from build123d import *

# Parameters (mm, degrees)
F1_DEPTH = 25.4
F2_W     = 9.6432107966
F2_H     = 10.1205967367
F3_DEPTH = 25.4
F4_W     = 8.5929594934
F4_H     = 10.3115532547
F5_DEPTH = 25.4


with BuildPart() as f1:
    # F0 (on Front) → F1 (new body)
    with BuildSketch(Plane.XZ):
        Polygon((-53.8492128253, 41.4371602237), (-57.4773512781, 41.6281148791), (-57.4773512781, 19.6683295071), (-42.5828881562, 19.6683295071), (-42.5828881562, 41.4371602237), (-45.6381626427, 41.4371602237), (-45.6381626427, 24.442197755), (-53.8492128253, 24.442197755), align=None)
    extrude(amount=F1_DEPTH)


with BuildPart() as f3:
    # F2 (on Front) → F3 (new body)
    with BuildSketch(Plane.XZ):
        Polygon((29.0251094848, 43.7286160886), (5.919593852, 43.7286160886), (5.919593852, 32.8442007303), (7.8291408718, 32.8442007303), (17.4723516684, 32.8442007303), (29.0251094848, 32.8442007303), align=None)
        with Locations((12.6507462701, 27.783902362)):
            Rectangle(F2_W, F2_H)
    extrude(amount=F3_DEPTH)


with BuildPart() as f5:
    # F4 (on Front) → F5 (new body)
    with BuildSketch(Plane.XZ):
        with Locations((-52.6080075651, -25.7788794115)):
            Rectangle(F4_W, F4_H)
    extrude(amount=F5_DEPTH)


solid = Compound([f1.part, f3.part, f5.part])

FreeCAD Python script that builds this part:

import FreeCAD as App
import Part
import Sketcher

V = App.Vector
Q = App.Units.Quantity

doc = App.newDocument("Part")
body = doc.addObject("PartDesign::Body", "Body")

sketch1 = doc.addObject("Sketcher::SketchObject", "Sketch")
body.addObject(sketch1)
sketch1.AttachmentSupport = (doc.XZ_Plane, [""])
sketch1.MapMode = "FlatFace"
sketch1.addGeometry(Part.LineSegment(V(-53.8, 41.4, 0), V(-57.5, 41.6, 0)), False)
sketch1.addGeometry(Part.LineSegment(V(-57.5, 41.6, 0), V(-57.5, 19.7, 0)), False)
sketch1.addGeometry(Part.LineSegment(V(-57.5, 19.7, 0), V(-42.6, 19.7, 0)), False)
sketch1.addGeometry(Part.LineSegment(V(-42.6, 19.7, 0), V(-42.6, 41.4, 0)), False)
sketch1.addGeometry(Part.LineSegment(V(-42.6, 41.4, 0), V(-45.6, 41.4, 0)), False)
sketch1.addGeometry(Part.LineSegment(V(-45.6, 41.4, 0), V(-45.6, 24.4, 0)), False)
sketch1.addGeometry(Part.LineSegment(V(-45.6, 24.4, 0), V(-53.8, 24.4, 0)), False)
sketch1.addGeometry(Part.LineSegment(V(-53.8, 24.4, 0), V(-53.8, 41.4, 0)), False)
sketch1.addConstraint(Sketcher.Constraint("Coincident", 0, 2, 1, 1))
sketch1.addConstraint(Sketcher.Constraint("Coincident", 1, 2, 2, 1))
sketch1.addConstraint(Sketcher.Constraint("Coincident", 2, 2, 3, 1))
sketch1.addConstraint(Sketcher.Constraint("Coincident", 3, 2, 4, 1))
sketch1.addConstraint(Sketcher.Constraint("Coincident", 4, 2, 5, 1))
sketch1.addConstraint(Sketcher.Constraint("Coincident", 5, 2, 6, 1))
sketch1.addConstraint(Sketcher.Constraint("Coincident", 6, 2, 7, 1))
sketch1.addConstraint(Sketcher.Constraint("Coincident", 7, 2, 0, 1))
sketch1.addConstraint(Sketcher.Constraint("Vertical", 1))
sketch1.addConstraint(Sketcher.Constraint("Horizontal", 2))
sketch1.addConstraint(Sketcher.Constraint("Vertical", 3))
sketch1.addConstraint(Sketcher.Constraint("Horizontal", 4))
sketch1.addConstraint(Sketcher.Constraint("Vertical", 5))
sketch1.addConstraint(Sketcher.Constraint("Horizontal", 6))
sketch1.addConstraint(Sketcher.Constraint("Vertical", 7))
sketch1.addConstraint(Sketcher.Constraint("Horizontal", 4, 2, 7, 2))
sketch1.addConstraint(Sketcher.Constraint("DistanceX", 6, 2, 6, 1, 8.21105))
sketch1.addConstraint(Sketcher.Constraint("DistanceY", 3, 1, 3, 2, 21.768831))
sketch1.addConstraint(Sketcher.Constraint("Distance", 0, 3.63316))
sketch1.addConstraint(Sketcher.Constraint("DistanceX", 2, 1, 2, 2, 14.894463))
sketch1.addConstraint(Sketcher.Constraint("DistanceX", 4, 2, 4, 1, 3.055274))
sketch1.addConstraint(Sketcher.Constraint("DistanceY", 5, 2, 5, 1, 16.994962))
sketch1.addConstraint(Sketcher.Constraint("DistanceX", 0, 2, -1, 1, 57.477351))
sketch1.addConstraint(Sketcher.Constraint("DistanceY", -1, 1, 1, 2, 19.66833))
pad1 = doc.addObject("PartDesign::Pad", "Pad")
body.addObject(pad1)
pad1.Profile = sketch1
pad1.Length = Q("1 in")
body2 = doc.addObject("PartDesign::Body", "Body001")

sketch2 = doc.addObject("Sketcher::SketchObject", "Sketch001")
body2.addObject(sketch2)
sketch2.AttachmentSupport = (doc.getObject("XZ_Plane001"), [""])
sketch2.MapMode = "FlatFace"
sketch2.addGeometry(Part.LineSegment(V(29, 43.7, 0), V(5.9, 43.7, 0)), False)
sketch2.addGeometry(Part.LineSegment(V(5.9, 43.7, 0), V(5.9, 32.8, 0)), False)
sketch2.addGeometry(Part.LineSegment(V(5.9, 32.8, 0), V(7.8, 32.8, 0)), False)
sketch2.addGeometry(Part.LineSegment(V(7.8, 32.8, 0), V(7.8, 22.7, 0)), False)
sketch2.addGeometry(Part.LineSegment(V(7.8, 22.7, 0), V(17.5, 22.7, 0)), False)
sketch2.addGeometry(Part.LineSegment(V(17.5, 22.7, 0), V(17.5, 32.8, 0)), False)
sketch2.addGeometry(Part.LineSegment(V(17.5, 32.8, 0), V(29, 32.8, 0)), False)
sketch2.addGeometry(Part.LineSegment(V(29, 32.8, 0), V(29, 43.7, 0)), False)
sketch2.addConstraint(Sketcher.Constraint("Coincident", 0, 2, 1, 1))
sketch2.addConstraint(Sketcher.Constraint("Coincident", 1, 2, 2, 1))
sketch2.addConstraint(Sketcher.Constraint("Coincident", 2, 2, 3, 1))
sketch2.addConstraint(Sketcher.Constraint("Coincident", 3, 2, 4, 1))
sketch2.addConstraint(Sketcher.Constraint("Coincident", 4, 2, 5, 1))
sketch2.addConstraint(Sketcher.Constraint("Coincident", 5, 2, 6, 1))
sketch2.addConstraint(Sketcher.Constraint("Coincident", 6, 2, 7, 1))
sketch2.addConstraint(Sketcher.Constraint("Coincident", 7, 2, 0, 1))
sketch2.addConstraint(Sketcher.Constraint("Horizontal", 0))
sketch2.addConstraint(Sketcher.Constraint("Vertical", 1))
sketch2.addConstraint(Sketcher.Constraint("Horizontal", 2))
sketch2.addConstraint(Sketcher.Constraint("Vertical", 3))
sketch2.addConstraint(Sketcher.Constraint("Horizontal", 4))
sketch2.addConstraint(Sketcher.Constraint("Vertical", 5))
sketch2.addConstraint(Sketcher.Constraint("Horizontal", 6))
sketch2.addConstraint(Sketcher.Constraint("Vertical", 7))
sketch2.addConstraint(Sketcher.Constraint("Horizontal", 2, 2, 5, 2))
sketch2.addConstraint(Sketcher.Constraint("DistanceX", 4, 1, 4, 2, 9.643211))
sketch2.addConstraint(Sketcher.Constraint("DistanceY", -1, 1, 1, 2, 32.844201))
sketch2.addConstraint(Sketcher.Constraint("DistanceX", 0, 2, 0, 1, 23.105516))
sketch2.addConstraint(Sketcher.Constraint("DistanceX", 2, 1, 2, 2, 1.909547))
sketch2.addConstraint(Sketcher.Constraint("DistanceY", 1, 2, 1, 1, 10.884415))
sketch2.addConstraint(Sketcher.Constraint("DistanceY", 3, 2, 3, 1, 10.120597))
sketch2.addConstraint(Sketcher.Constraint("DistanceX", -1, 1, 2, 2, 7.829141))
pad2 = doc.addObject("PartDesign::Pad", "Pad001")
body2.addObject(pad2)
pad2.Profile = sketch2
pad2.Length = Q("1 in")
body3 = doc.addObject("PartDesign::Body", "Body002")

sketch3 = doc.addObject("Sketcher::SketchObject", "Sketch002")
body3.addObject(sketch3)
sketch3.AttachmentSupport = (doc.getObject("XZ_Plane002"), [""])
sketch3.MapMode = "FlatFace"
sketch3.addGeometry(Part.LineSegment(V(-57, -21, 0), V(-57, -31, 0)), False)
sketch3.addGeometry(Part.LineSegment(V(-57, -31, 0), V(-48, -31, 0)), False)
sketch3.addGeometry(Part.LineSegment(V(-48, -31, 0), V(-48, -21, 0)), False)
sketch3.addGeometry(Part.LineSegment(V(-48, -21, 0), V(-57, -21, 0)), False)
sketch3.addConstraint(Sketcher.Constraint("Coincident", 0, 2, 1, 1))
sketch3.addConstraint(Sketcher.Constraint("Coincident", 1, 2, 2, 1))
sketch3.addConstraint(Sketcher.Constraint("Coincident", 2, 2, 3, 1))
sketch3.addConstraint(Sketcher.Constraint("Coincident", 3, 2, 0, 1))
sketch3.addConstraint(Sketcher.Constraint("Vertical", 0))
sketch3.addConstraint(Sketcher.Constraint("Horizontal", 1))
sketch3.addConstraint(Sketcher.Constraint("Vertical", 2))
sketch3.addConstraint(Sketcher.Constraint("Horizontal", 3))
sketch3.addConstraint(Sketcher.Constraint("DistanceY", 0, 2, -1, 1, Q("1.2178998 in")))
sketch3.addConstraint(Sketcher.Constraint("DistanceX", 1, 1, 1, 2, 8.592959))
sketch3.addConstraint(Sketcher.Constraint("DistanceY", 0, 2, 0, 1, 10.311553))
sketch3.addConstraint(Sketcher.Constraint("DistanceX", 0, 2, -1, 1, 56.904487))
pad3 = doc.addObject("PartDesign::Pad", "Pad002")
body3.addObject(pad3)
pad3.Profile = sketch3
pad3.Length = Q("1 in")

doc.recompute()
